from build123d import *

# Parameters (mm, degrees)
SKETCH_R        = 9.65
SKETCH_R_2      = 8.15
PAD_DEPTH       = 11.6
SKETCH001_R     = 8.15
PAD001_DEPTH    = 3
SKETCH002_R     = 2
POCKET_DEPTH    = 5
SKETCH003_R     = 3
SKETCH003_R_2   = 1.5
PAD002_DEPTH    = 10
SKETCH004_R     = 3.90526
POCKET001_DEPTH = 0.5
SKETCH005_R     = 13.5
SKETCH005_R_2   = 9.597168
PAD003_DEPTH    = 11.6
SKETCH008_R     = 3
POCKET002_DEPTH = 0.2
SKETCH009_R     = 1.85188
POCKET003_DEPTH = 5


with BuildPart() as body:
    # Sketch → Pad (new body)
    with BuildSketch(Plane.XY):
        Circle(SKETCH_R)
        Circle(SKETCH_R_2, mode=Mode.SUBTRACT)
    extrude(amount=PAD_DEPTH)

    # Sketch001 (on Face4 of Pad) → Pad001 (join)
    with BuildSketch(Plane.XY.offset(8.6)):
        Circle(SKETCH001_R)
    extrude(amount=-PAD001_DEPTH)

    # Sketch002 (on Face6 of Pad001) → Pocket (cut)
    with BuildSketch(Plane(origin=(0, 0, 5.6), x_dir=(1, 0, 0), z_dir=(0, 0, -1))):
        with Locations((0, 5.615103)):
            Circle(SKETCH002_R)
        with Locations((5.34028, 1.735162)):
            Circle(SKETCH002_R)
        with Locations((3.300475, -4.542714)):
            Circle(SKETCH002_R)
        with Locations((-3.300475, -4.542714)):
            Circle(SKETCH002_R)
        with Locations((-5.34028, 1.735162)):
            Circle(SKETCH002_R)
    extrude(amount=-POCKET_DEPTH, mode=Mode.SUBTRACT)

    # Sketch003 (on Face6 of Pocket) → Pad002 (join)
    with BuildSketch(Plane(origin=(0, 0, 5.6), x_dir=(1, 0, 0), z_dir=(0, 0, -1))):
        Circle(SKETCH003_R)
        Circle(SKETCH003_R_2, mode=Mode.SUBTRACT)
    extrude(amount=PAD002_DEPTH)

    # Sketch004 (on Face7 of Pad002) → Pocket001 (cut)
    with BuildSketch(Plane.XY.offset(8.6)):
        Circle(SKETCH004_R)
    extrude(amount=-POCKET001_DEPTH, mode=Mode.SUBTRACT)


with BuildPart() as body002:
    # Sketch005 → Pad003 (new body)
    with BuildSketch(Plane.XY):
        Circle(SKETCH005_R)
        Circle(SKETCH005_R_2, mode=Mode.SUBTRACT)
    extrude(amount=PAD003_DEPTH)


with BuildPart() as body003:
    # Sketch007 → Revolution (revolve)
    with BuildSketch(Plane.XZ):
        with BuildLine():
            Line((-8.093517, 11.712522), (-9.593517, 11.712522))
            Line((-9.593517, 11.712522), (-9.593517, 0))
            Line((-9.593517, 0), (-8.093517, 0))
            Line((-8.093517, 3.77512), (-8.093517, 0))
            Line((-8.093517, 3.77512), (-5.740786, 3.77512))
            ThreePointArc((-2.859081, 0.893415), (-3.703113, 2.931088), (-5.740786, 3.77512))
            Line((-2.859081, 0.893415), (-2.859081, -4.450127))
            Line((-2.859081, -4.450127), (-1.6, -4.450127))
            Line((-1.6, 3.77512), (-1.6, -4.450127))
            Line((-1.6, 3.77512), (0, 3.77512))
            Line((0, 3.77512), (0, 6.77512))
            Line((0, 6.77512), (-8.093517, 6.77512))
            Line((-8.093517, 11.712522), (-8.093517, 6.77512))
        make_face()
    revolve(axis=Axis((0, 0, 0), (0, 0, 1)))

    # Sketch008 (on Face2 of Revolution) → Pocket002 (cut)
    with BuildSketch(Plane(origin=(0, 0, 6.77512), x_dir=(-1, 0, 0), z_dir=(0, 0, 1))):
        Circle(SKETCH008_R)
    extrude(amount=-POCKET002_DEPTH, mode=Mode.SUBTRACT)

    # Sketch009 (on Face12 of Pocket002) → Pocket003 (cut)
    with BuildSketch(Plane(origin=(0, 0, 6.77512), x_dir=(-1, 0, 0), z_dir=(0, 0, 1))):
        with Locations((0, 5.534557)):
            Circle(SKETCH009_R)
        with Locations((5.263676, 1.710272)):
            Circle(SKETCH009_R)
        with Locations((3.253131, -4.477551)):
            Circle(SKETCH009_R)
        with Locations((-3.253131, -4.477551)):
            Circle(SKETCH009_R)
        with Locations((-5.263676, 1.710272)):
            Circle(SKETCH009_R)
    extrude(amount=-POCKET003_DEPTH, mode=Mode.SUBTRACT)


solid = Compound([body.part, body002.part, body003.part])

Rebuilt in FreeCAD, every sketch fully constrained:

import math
import FreeCAD as App
import Part
import Sketcher

V = App.Vector
Q = App.Units.Quantity

doc = App.newDocument("Part")
body = doc.addObject("PartDesign::Body", "Body")

# Sketch on XY plane
sketch1 = body.newObject("Sketcher::SketchObject", "Sketch")
sketch1.AttachmentSupport = (doc.getObject("XY_Plane"), [""])
sketch1.MapMode = "FlatFace"
sketch1.addGeometry(Part.Circle(V(0, 0, 0), V(0, 0, 1), 9.65), False)
sketch1.addGeometry(Part.Circle(V(0, 0, 0), V(0, 0, 1), 8.15), False)
sketch1.addConstraint(Sketcher.Constraint("Coincident", 0, 3, -1, 1))
sketch1.addConstraint(Sketcher.Constraint("Coincident", 1, 3, -1, 1))
sketch1.addConstraint(Sketcher.Constraint("Diameter", 0, Q("19.3 mm")))
sketch1.addConstraint(Sketcher.Constraint("Diameter", 1, Q("16.3 mm")))
pad1 = body.newObject("PartDesign::Pad", "Pad")
pad1.Profile = sketch1
pad1.Length = 11.6

# Sketch on XY plane
sketch2 = body.newObject("Sketcher::SketchObject", "Sketch001")
sketch2.AttachmentSupport = (doc.getObject("XY_Plane"), [""])
sketch2.MapMode = "FlatFace"
sketch2.AttachmentOffset = App.Placement(V(0, 0, 8.6), App.Rotation())
sketch2.addGeometry(Part.Circle(V(0, 0, 0), V(0, 0, 1), 8.15), False)
sketch2.addConstraint(Sketcher.Constraint("Coincident", 0, 3, -1, 1))
sketch2.addConstraint(Sketcher.Constraint("Diameter", 0, Q("16.3 mm")))
pad2 = body.newObject("PartDesign::Pad", "Pad001")
pad2.Profile = sketch2
pad2.Length = 3
pad2.Reversed = True

# Sketch on XY plane
sketch3 = body.newObject("Sketcher::SketchObject", "Sketch002")
sketch3.AttachmentSupport = (doc.getObject("XY_Plane"), [""])
sketch3.MapMode = "FlatFace"
sketch3.AttachmentOffset = App.Placement(V(0, 0, 5.6), App.Rotation())
sketch3.addGeometry(Part.Circle(V(0, -5.615103, 0), V(0, 0, 1), 2), False)
sketch3.addGeometry(Part.Circle(V(5.34028, -1.735162, 0), V(0, 0, 1), 2), False)
sketch3.addGeometry(Part.Circle(V(3.300475, 4.542714, 0), V(0, 0, 1), 2), False)
sketch3.addGeometry(Part.Circle(V(-3.300475, 4.542714, 0), V(0, 0, 1), 2), False)
sketch3.addGeometry(Part.Circle(V(-5.34028, -1.735162, 0), V(0, 0, 1), 2), False)
sketch3.addConstraint(Sketcher.Constraint("Equal", 0, 1))
sketch3.addConstraint(Sketcher.Constraint("Equal", 1, 2))
sketch3.addConstraint(Sketcher.Constraint("Equal", 2, 3))
sketch3.addConstraint(Sketcher.Constraint("Equal", 3, 4))
sketch3.addConstraint(Sketcher.Constraint("Symmetric", 2, 3, 3, 3, -2))
sketch3.addConstraint(Sketcher.Constraint("Symmetric", 1, 3, 4, 3, -2))
sketch3.addConstraint(Sketcher.Constraint("PointOnObject", 0, 3, -2))
sketch3.addConstraint(Sketcher.Constraint("Diameter", 0, Q("4 mm")))
sketch3.addConstraint(Sketcher.Constraint("DistanceX", -1, 1, 1, 3, Q("5.34028 mm")))
sketch3.addConstraint(Sketcher.Constraint("DistanceY", 0, 3, 1, 3, Q("3.879941 mm")))
sketch3.addConstraint(Sketcher.Constraint("DistanceX", 3, 3, 2, 3, Q("6.60095 mm")))
sketch3.addConstraint(Sketcher.Constraint("DistanceY", 0, 3, -1, 1, Q("5.615103 mm")))
sketch3.addConstraint(Sketcher.Constraint("DistanceY", -1, 1, 2, 3, Q("4.542714 mm")))
pocket1 = body.newObject("PartDesign::Pocket", "Pocket")
pocket1.Profile = sketch3
pocket1.Length = 5
pocket1.Reversed = True

# Sketch on XY plane
sketch4 = body.newObject("Sketcher::SketchObject", "Sketch003")
sketch4.AttachmentSupport = (doc.getObject("XY_Plane"), [""])
sketch4.MapMode = "FlatFace"
sketch4.AttachmentOffset = App.Placement(V(0, 0, 5.6), App.Rotation())
sketch4.addGeometry(Part.Circle(V(0, 0, 0), V(0, 0, 1), 3), False)
sketch4.addGeometry(Part.Circle(V(0, 0, 0), V(0, 0, 1), 1.5), False)
sketch4.addConstraint(Sketcher.Constraint("Coincident", 0, 3, -1, 1))
sketch4.addConstraint(Sketcher.Constraint("Coincident", 1, 3, -1, 1))
sketch4.addConstraint(Sketcher.Constraint("Diameter", 0, Q("6 mm")))
sketch4.addConstraint(Sketcher.Constraint("Diameter", 1, Q("3 mm")))
pad3 = body.newObject("PartDesign::Pad", "Pad002")
pad3.Profile = sketch4
pad3.Length = 10
pad3.Reversed = True

# Sketch on XY plane
sketch5 = body.newObject("Sketcher::SketchObject", "Sketch004")
sketch5.AttachmentSupport = (doc.getObject("XY_Plane"), [""])
sketch5.MapMode = "FlatFace"
sketch5.AttachmentOffset = App.Placement(V(0, 0, 8.6), App.Rotation())
sketch5.addGeometry(Part.Circle(V(0, 0, 0), V(0, 0, 1), 3.90526), False)
sketch5.addConstraint(Sketcher.Constraint("Coincident", 0, 3, -1, 1))
sketch5.addConstraint(Sketcher.Constraint("Diameter", 0, Q("7.81052 mm")))
pocket2 = body.newObject("PartDesign::Pocket", "Pocket001")
pocket2.Profile = sketch5
pocket2.Length = 0.5
body2 = doc.addObject("PartDesign::Body", "Body001")

# Sketch on XY plane
sketch6 = body2.newObject("Sketcher::SketchObject", "Sketch005")
sketch6.AttachmentSupport = (doc.getObject("XY_Plane001"), [""])
sketch6.MapMode = "FlatFace"
sketch6.addGeometry(Part.Circle(V(0, 0, 0), V(0, 0, 1), 13.5), False)
sketch6.addGeometry(Part.Circle(V(0, 0, 0), V(0, 0, 1), 9.597168), False)
sketch6.addConstraint(Sketcher.Constraint("Coincident", 0, 3, -1, 1))
sketch6.addConstraint(Sketcher.Constraint("Coincident", 1, 3, -1, 1))
sketch6.addConstraint(Sketcher.Constraint("Diameter", 0, Q("27 mm")))
sketch6.addConstraint(Sketcher.Constraint("Diameter", 1, Q("19.194336 mm")))
pad4 = body2.newObject("PartDesign::Pad", "Pad003")
pad4.Profile = sketch6
pad4.Length = 11.6
body3 = doc.addObject("PartDesign::Body", "Body002")

# Sketch on XZ plane
sketch7 = body3.newObject("Sketcher::SketchObject", "Sketch006")
sketch7.AttachmentSupport = (doc.getObject("XZ_Plane002"), [""])
sketch7.MapMode = "FlatFace"
sketch7.addGeometry(Part.LineSegment(V(-8.093517, 11.712522, 0), V(-9.593517, 11.712522, 0)), False)
sketch7.addGeometry(Part.LineSegment(V(-9.593517, 11.712522, 0), V(-9.593517, 0, 0)), False)
sketch7.addGeometry(Part.LineSegment(V(-9.593517, 0, 0), V(-8.093517, 0, 0)), False)
sketch7.addGeometry(Part.LineSegment(V(-8.093517, 0, 0), V(-8.093517, 3.77512, 0)), False)
sketch7.addGeometry(Part.LineSegment(V(-8.093517, 3.77512, 0), V(-5.740786, 3.77512, 0)), False)
sketch7.addGeometry(Part.ArcOfCircle(Part.Circle(V(-5.740787, 0.893414, 0), V(0, 0, 1), 2.881706), math.radians(0.00001), math.radians(89.99999)), False)
sketch7.addGeometry(Part.LineSegment(V(-2.859081, 0.893415, 0), V(-2.859081, -4.450127, 0)), False)
sketch7.addGeometry(Part.LineSegment(V(-2.859081, -4.450127, 0), V(-1.6, -4.450127, 0)), False)
sketch7.addGeometry(Part.LineSegment(V(-1.6, -4.450127, 0), V(-1.6, 3.77512, 0)), False)
sketch7.addGeometry(Part.LineSegment(V(-1.6, 3.77512, 0), V(0, 3.77512, 0)), False)
sketch7.addGeometry(Part.LineSegment(V(0, 3.77512, 0), V(0, 6.77512, 0)), False)
sketch7.addGeometry(Part.LineSegment(V(0, 6.77512, 0), V(-8.093517, 6.77512, 0)), False)
sketch7.addGeometry(Part.LineSegment(V(-8.093517, 6.77512, 0), V(-8.093517, 11.712522, 0)), False)
sketch7.addConstraint(Sketcher.Constraint("Coincident", 0, 2, 1, 1))
sketch7.addConstraint(Sketcher.Constraint("Coincident", 1, 2, 2, 1))
sketch7.addConstraint(Sketcher.Constraint("Coincident", 2, 2, 3, 1))
sketch7.addConstraint(Sketcher.Constraint("Coincident", 3, 2, 4, 1))
sketch7.addConstraint(Sketcher.Constraint("Tangent", 4, 2, 5, 2))
sketch7.addConstraint(Sketcher.Constraint("Tangent", 5, 1, 6, 1))
sketch7.addConstraint(Sketcher.Constraint("Coincident", 6, 2, 7, 1))
sketch7.addConstraint(Sketcher.Constraint("Coincident", 7, 2, 8, 1))
sketch7.addConstraint(Sketcher.Constraint("Coincident", 8, 2, 9, 1))
sketch7.addConstraint(Sketcher.Constraint("Coincident", 9, 2, 10, 1))
sketch7.addConstraint(Sketcher.Constraint("Coincident", 10, 2, 11, 1))
sketch7.addConstraint(Sketcher.Constraint("Coincident", 11, 2, 12, 1))
sketch7.addConstraint(Sketcher.Constraint("Coincident", 12, 2, 0, 1))
sketch7.addConstraint(Sketcher.Constraint("Horizontal", 0))
sketch7.addConstraint(Sketcher.Constraint("Vertical", 1))
sketch7.addConstraint(Sketcher.Constraint("Horizontal", 2))
sketch7.addConstraint(Sketcher.Constraint("Vertical", 3))
sketch7.addConstraint(Sketcher.Constraint("Horizontal", 4))
sketch7.addConstraint(Sketcher.Constraint("Vertical", 6))
sketch7.addConstraint(Sketcher.Constraint("Horizontal", 7))
sketch7.addConstraint(Sketcher.Constraint("Vertical", 8))
sketch7.addConstraint(Sketcher.Constraint("Horizontal", 9))
sketch7.addConstraint(Sketcher.Constraint("Vertical", 10))
sketch7.addConstraint(Sketcher.Constraint("Horizontal", 11))
sketch7.addConstraint(Sketcher.Constraint("Vertical", 12))
sketch7.addConstraint(Sketcher.Constraint("PointOnObject", 1, 2, -1))
sketch7.addConstraint(Sketcher.Constraint("PointOnObject", 9, 2, -2))
sketch7.addConstraint(Sketcher.Constraint("Horizontal", 4, 2, 8, 2))
sketch7.addConstraint(Sketcher.Constraint("Vertical", 3, 2, 11, 2))
sketch7.addConstraint(Sketcher.Constraint("DistanceY", 10, 1, 10, 2, Q("3 mm")))
sketch7.addConstraint(Sketcher.Constraint("DistanceX", 0, 2, 0, 1, Q("1.5 mm")))
sketch7.addConstraint(Sketcher.Constraint("DistanceX", 9, 1, 9, 2, Q("1.6 mm")))
sketch7.addConstraint(Sketcher.Constraint("DistanceY", 12, 1, 12, 2, Q("4.937402 mm")))
sketch7.addConstraint(Sketcher.Constraint("Radius", 5, Q("2.881706 mm")))
sketch7.addConstraint(Sketcher.Constraint("DistanceX", 4, 1, 4, 2, Q("2.352731 mm")))
sketch7.addConstraint(Sketcher.Constraint("DistanceX", 7, 1, 7, 2, Q("1.259081 mm")))
sketch7.addConstraint(Sketcher.Constraint("DistanceY", 3, 1, 3, 2, Q("3.77512 mm")))
sketch7.addConstraint(Sketcher.Constraint("DistanceY", 6, 2, 6, 1, Q("5.343542 mm")))
revolution = body3.newObject("PartDesign::Revolution", "Revolution")
revolution.Profile = sketch7
revolution.ReferenceAxis = (sketch7, ["V_Axis"])
revolution.Angle = 360

# Sketch on XY plane
sketch8 = body3.newObject("Sketcher::SketchObject", "Sketch007")
sketch8.AttachmentSupport = (doc.getObject("XY_Plane002"), [""])
sketch8.MapMode = "FlatFace"
sketch8.AttachmentOffset = App.Placement(V(0, 0, 6.77512), App.Rotation())
sketch8.addGeometry(Part.Circle(V(0, 0, 0), V(0, 0, 1), 3), False)
sketch8.addConstraint(Sketcher.Constraint("Coincident", 0, 3, -1, 1))
sketch8.addConstraint(Sketcher.Constraint("Diameter", 0, Q("6 mm")))
pocket3 = body3.newObject("PartDesign::Pocket", "Pocket002")
pocket3.Profile = sketch8
pocket3.Length = 0.2

# Sketch on XY plane
sketch9 = body3.newObject("Sketcher::SketchObject", "Sketch008")
sketch9.AttachmentSupport = (doc.getObject("XY_Plane002"), [""])
sketch9.MapMode = "FlatFace"
sketch9.AttachmentOffset = App.Placement(V(0, 0, 6.77512), App.Rotation())
sketch9.addGeometry(Part.Circle(V(0, -5.534557, 0), V(0, 0, 1), 1.85188), False)
sketch9.addGeometry(Part.Circle(V(-5.263676, -1.710272, 0), V(0, 0, 1), 1.85188), False)
sketch9.addGeometry(Part.Circle(V(-3.253131, 4.477551, 0), V(0, 0, 1), 1.85188), False)
sketch9.addGeometry(Part.Circle(V(3.253131, 4.477551, 0), V(0, 0, 1), 1.85188), False)
sketch9.addGeometry(Part.Circle(V(5.263676, -1.710272, 0), V(0, 0, 1), 1.85188), False)
sketch9.addConstraint(Sketcher.Constraint("Equal", 0, 1))
sketch9.addConstraint(Sketcher.Constraint("Equal", 1, 2))
sketch9.addConstraint(Sketcher.Constraint("Equal", 2, 3))
sketch9.addConstraint(Sketcher.Constraint("Equal", 3, 4))
sketch9.addConstraint(Sketcher.Constraint("Symmetric", 2, 3, 3, 3, -2))
sketch9.addConstraint(Sketcher.Constraint("Symmetric", 1, 3, 4, 3, -2))
sketch9.addConstraint(Sketcher.Constraint("PointOnObject", 0, 3, -2))
sketch9.addConstraint(Sketcher.Constraint("Diameter", 0, Q("3.70376 mm")))
sketch9.addConstraint(Sketcher.Constraint("DistanceX", 2, 3, -1, 1, Q("3.253131 mm")))
sketch9.addConstraint(Sketcher.Constraint("DistanceY", -1, 1, 2, 3, Q("4.477551 mm")))
sketch9.addConstraint(Sketcher.Constraint("DistanceY", 0, 3, 2, 3, Q("10.012108 mm")))
sketch9.addConstraint(Sketcher.Constraint("DistanceX", 1, 3, -1, 1, Q("5.263676 mm")))
sketch9.addConstraint(Sketcher.Constraint("DistanceY", 1, 3, -1, 1, Q("1.710272 mm")))
pocket4 = body3.newObject("PartDesign::Pocket", "Pocket003")
pocket4.Profile = sketch9
pocket4.Length = 5

doc.recompute()
